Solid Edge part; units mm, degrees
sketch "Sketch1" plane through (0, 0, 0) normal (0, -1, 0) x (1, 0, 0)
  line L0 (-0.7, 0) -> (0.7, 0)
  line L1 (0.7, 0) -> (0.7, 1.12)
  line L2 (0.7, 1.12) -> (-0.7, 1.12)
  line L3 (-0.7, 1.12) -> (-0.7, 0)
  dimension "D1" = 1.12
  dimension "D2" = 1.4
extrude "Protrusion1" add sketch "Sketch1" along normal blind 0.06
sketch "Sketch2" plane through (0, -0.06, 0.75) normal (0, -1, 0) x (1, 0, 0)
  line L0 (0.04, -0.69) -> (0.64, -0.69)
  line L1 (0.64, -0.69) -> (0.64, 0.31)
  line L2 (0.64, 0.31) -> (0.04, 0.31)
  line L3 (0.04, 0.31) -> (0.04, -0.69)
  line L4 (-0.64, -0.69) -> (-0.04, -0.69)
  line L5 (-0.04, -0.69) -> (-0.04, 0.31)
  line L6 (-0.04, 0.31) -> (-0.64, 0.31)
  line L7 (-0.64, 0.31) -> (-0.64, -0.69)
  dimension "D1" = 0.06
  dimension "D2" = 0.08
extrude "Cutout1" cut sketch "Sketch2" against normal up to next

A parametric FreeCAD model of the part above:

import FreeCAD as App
import Part
import Sketcher

V = App.Vector
Q = App.Units.Quantity


def add_polygon(sketch, points):
    """Adds a closed chain of lines whose ends are joined by coincident constraints."""
    first, n = sketch.GeometryCount, len(points)
    for a, b in zip(points, points[1:] + points[:1]):
        sketch.addGeometry(Part.LineSegment(App.Vector(*a, 0), App.Vector(*b, 0)), False)
    for i in range(n):
        sketch.addConstraint(Sketcher.Constraint("Coincident", first + i, 2, first + (i + 1) % n, 1))

doc = App.newDocument("Part")
body = doc.addObject("PartDesign::Body", "Body")

# Sketch on XZ plane
sketch1 = doc.addObject("Sketcher::SketchObject", "Sketch")
body.addObject(sketch1)
sketch1.AttachmentSupport = (doc.XZ_Plane, [""])
sketch1.MapMode = "FlatFace"
add_polygon(sketch1, [(-0.7, 1.1), (-0.7, 0), (0.7, 0), (0.7, 1.1)])  # lines 0-3
sketch1.addConstraint([
    Sketcher.Constraint("Vertical", 0),
    Sketcher.Constraint("Horizontal", 1),
    Sketcher.Constraint("Vertical", 2),
    Sketcher.Constraint("Horizontal", 3),
    Sketcher.Constraint("Symmetric", 0, 2, 1, 2, -1, 1),
    Sketcher.Constraint("DistanceX", 0, 2, -1, 1, Q("0.7 mm")),
    Sketcher.Constraint("DistanceY", 0, 2, 0, 1, Q("1.12 mm")),
])
pad1 = doc.addObject("PartDesign::Pad", "Pad")
body.addObject(pad1)
pad1.Profile = sketch1
pad1.Length = 0.06

# Sketch on XZ plane
sketch2 = doc.addObject("Sketcher::SketchObject", "Sketch001")
body.addObject(sketch2)
sketch2.AttachmentSupport = (doc.XZ_Plane, [""])
sketch2.MapMode = "FlatFace"
sketch2.AttachmentOffset = App.Placement(V(0, 0, 0.06), App.Rotation())
add_polygon(sketch2, [(0.04, 1.06), (0.04, 0.06), (0.64, 0.06), (0.64, 1.06)])  # lines 0-3
add_polygon(sketch2, [(-0.64, 1.06), (-0.64, 0.06), (-0.04, 0.06), (-0.04, 1.06)])  # lines 4-7
sketch2.addConstraint([
    Sketcher.Constraint("Vertical", 0),
    Sketcher.Constraint("Horizontal", 1),
    Sketcher.Constraint("Vertical", 2),
    Sketcher.Constraint("Horizontal", 3),
    Sketcher.Constraint("Vertical", 4),
    Sketcher.Constraint("Horizontal", 5),
    Sketcher.Constraint("Vertical", 6),
    Sketcher.Constraint("Horizontal", 7),
    Sketcher.Constraint("Symmetric", 1, 2, 4, 2, -2),
    Sketcher.Constraint("Symmetric", 3, 2, 6, 2, -2),
    Sketcher.Constraint("DistanceY", 0, 2, 0, 1, Q("1 mm")),
    Sketcher.Constraint("DistanceX", -1, 1, 0, 2, Q("0.04 mm")),
    Sketcher.Constraint("DistanceX", -1, 1, 1, 2, Q("0.64 mm")),
    Sketcher.Constraint("DistanceY", -1, 1, 0, 2, Q("0.06 mm")),
])
pocket1 = doc.addObject("PartDesign::Pocket", "Pocket")
body.addObject(pocket1)
pocket1.Profile = sketch2
pocket1.Type = "UpToFirst"

doc.recompute()
